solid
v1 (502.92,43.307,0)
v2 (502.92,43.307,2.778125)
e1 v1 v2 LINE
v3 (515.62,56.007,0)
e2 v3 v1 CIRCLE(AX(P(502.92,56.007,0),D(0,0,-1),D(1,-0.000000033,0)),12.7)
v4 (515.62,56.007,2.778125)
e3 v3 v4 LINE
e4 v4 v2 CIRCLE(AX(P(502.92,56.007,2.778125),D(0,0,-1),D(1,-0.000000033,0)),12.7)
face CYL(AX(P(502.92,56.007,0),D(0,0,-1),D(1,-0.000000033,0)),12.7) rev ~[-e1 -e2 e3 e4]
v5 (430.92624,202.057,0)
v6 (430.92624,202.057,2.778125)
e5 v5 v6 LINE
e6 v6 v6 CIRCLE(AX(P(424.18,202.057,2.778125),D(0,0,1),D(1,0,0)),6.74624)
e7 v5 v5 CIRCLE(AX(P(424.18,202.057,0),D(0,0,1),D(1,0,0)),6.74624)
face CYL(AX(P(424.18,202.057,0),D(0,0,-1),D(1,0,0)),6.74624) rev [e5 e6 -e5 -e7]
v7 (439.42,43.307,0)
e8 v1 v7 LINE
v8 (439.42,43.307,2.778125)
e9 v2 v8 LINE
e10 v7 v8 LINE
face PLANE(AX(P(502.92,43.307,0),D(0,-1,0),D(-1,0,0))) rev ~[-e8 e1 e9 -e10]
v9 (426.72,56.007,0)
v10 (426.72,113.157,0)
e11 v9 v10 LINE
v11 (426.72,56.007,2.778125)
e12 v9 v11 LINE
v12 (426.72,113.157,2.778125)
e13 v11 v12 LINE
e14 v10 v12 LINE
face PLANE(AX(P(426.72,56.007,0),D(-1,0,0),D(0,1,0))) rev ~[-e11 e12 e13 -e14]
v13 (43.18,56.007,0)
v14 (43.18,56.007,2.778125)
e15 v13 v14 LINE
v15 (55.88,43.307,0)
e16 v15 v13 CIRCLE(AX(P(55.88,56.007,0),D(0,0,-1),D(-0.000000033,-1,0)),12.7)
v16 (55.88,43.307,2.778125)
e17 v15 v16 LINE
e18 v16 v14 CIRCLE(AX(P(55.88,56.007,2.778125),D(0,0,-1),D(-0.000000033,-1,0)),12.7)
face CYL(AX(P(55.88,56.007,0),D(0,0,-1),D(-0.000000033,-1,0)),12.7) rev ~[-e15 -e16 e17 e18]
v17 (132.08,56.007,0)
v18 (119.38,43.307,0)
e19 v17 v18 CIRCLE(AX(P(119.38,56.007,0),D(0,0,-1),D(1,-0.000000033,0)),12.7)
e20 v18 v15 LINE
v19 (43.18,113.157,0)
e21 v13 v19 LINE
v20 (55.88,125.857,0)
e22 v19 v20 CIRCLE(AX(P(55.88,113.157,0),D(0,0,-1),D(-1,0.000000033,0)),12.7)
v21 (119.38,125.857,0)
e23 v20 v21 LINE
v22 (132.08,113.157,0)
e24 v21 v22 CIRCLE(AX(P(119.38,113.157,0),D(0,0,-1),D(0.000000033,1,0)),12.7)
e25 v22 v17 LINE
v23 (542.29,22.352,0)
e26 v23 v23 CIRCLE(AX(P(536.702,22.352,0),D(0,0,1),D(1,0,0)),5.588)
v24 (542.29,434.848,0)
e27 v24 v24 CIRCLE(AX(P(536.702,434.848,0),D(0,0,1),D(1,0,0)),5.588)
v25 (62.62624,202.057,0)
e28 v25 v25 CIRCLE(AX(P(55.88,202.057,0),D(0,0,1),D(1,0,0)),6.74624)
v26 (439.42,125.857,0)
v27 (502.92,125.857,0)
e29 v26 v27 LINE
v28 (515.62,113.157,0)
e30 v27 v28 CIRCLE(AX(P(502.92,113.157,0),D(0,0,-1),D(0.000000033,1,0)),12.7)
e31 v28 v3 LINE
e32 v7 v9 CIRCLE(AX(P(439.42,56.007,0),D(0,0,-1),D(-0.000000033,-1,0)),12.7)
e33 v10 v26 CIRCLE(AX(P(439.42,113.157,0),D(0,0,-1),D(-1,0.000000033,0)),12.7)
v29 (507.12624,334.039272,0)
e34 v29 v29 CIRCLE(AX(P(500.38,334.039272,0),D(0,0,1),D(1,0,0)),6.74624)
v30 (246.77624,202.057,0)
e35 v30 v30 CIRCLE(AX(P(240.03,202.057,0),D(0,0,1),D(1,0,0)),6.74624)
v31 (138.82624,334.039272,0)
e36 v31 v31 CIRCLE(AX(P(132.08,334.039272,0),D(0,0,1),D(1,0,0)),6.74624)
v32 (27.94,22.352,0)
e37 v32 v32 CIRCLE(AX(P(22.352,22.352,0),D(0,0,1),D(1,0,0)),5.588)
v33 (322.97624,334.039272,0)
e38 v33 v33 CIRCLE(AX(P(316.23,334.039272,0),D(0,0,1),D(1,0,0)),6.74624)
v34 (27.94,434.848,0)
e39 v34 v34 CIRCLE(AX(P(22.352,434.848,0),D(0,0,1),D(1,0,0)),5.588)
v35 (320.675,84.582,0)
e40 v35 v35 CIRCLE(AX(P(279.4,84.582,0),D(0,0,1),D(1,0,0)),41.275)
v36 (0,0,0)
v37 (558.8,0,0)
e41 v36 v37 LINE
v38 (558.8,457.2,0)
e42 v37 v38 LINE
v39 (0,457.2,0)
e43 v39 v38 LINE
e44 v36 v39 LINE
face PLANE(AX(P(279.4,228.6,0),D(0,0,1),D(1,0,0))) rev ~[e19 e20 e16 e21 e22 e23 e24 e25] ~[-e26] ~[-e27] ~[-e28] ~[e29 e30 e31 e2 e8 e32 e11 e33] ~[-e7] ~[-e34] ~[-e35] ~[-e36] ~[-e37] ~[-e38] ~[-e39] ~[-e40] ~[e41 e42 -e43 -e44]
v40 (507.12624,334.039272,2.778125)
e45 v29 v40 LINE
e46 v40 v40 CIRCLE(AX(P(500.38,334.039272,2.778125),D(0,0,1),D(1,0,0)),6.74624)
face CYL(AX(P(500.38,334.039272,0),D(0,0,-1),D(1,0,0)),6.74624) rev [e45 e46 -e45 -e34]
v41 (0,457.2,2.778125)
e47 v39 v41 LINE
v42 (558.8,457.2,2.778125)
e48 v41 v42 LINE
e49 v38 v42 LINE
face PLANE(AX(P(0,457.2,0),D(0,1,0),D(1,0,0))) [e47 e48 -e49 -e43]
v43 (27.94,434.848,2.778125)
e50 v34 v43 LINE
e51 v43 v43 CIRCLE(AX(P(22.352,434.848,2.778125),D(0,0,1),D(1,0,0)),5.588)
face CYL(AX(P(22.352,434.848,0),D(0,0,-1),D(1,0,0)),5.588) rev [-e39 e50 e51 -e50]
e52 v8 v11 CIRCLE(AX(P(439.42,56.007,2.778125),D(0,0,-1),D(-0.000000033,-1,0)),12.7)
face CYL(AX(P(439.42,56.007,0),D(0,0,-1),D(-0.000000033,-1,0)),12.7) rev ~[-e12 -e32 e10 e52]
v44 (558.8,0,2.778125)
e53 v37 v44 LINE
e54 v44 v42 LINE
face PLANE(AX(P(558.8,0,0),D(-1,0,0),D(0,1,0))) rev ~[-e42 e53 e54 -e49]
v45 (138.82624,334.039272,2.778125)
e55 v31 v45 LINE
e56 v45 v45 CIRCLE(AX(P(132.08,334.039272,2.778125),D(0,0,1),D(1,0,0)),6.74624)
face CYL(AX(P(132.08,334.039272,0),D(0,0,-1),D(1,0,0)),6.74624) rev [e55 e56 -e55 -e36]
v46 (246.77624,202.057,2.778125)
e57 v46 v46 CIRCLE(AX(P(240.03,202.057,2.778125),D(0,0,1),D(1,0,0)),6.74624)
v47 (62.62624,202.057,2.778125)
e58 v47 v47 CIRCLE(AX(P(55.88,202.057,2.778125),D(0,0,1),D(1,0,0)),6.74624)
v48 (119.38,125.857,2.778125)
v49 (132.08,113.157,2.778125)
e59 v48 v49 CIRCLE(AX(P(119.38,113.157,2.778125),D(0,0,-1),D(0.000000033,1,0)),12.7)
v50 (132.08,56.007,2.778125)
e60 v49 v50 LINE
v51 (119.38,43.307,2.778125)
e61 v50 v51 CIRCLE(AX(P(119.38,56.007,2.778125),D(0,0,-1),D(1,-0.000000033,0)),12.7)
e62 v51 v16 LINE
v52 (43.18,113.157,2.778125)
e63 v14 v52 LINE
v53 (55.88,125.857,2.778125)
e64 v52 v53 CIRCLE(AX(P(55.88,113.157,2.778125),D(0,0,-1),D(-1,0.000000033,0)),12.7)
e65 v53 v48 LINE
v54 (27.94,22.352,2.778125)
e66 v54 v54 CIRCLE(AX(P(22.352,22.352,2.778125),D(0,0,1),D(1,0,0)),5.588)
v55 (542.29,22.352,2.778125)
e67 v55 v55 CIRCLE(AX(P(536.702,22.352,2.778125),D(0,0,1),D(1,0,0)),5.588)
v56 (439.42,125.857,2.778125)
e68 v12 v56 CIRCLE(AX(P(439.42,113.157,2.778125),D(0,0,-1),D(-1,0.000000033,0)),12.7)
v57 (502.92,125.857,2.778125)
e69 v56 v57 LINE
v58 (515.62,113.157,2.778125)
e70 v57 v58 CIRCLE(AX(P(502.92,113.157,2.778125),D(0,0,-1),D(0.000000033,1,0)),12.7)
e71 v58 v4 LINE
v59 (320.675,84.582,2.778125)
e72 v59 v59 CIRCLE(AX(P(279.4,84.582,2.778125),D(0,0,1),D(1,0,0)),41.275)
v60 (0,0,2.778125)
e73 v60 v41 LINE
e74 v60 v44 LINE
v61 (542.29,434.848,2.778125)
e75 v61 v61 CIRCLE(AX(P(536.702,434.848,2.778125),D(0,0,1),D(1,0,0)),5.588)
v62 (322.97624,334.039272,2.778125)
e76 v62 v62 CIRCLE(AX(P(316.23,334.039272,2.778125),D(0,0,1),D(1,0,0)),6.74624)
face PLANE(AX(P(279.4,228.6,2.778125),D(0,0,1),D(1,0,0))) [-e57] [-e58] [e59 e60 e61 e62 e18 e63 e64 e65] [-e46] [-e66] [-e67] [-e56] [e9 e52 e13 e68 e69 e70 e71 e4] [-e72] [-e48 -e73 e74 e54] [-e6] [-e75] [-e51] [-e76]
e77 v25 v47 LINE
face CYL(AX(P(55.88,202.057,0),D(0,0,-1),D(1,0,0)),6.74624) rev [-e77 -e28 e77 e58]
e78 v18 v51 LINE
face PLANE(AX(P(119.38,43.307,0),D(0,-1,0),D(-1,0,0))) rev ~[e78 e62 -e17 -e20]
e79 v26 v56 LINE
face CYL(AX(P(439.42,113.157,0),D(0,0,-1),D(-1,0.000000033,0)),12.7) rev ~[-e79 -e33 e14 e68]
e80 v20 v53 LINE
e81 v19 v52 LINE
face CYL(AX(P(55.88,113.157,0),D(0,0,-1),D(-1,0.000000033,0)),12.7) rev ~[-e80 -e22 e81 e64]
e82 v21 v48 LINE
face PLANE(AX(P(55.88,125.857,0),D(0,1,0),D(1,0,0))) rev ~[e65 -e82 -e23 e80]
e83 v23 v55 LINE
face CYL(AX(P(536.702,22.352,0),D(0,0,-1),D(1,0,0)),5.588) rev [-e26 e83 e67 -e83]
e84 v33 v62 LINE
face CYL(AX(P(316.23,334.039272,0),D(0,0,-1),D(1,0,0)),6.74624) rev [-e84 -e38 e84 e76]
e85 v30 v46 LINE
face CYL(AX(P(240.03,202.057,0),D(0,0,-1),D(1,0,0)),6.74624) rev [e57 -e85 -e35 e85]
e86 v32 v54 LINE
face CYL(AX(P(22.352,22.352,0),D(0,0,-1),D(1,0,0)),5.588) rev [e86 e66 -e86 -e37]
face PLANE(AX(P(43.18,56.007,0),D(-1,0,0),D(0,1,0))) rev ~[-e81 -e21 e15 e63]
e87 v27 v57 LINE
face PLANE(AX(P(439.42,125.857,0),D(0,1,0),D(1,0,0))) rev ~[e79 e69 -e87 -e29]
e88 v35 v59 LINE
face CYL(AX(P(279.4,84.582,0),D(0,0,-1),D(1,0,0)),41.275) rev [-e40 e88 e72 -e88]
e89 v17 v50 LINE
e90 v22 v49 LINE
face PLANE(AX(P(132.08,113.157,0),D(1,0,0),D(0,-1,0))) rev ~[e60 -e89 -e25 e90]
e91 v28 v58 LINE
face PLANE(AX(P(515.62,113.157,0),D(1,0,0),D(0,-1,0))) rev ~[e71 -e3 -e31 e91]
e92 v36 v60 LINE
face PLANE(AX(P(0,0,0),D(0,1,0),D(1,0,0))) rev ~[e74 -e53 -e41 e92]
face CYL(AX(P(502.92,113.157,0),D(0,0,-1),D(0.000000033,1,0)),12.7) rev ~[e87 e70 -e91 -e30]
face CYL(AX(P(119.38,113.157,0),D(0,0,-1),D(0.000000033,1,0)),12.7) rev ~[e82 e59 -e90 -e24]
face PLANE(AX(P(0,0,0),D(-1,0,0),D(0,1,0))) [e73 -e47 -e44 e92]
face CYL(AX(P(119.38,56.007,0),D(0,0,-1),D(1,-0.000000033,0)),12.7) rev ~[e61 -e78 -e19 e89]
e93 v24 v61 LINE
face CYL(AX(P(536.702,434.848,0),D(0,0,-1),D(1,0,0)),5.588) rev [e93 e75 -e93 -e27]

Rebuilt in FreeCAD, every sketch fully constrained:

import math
import FreeCAD as App
import Part
import Sketcher
from FreeCAD import Vector
Q = App.Units.Quantity


def add_polygon(sketch, points):
    """Adds a closed chain of lines whose ends are joined by coincident constraints."""
    first, n = sketch.GeometryCount, len(points)
    for a, b in zip(points, points[1:] + points[:1]):
        sketch.addGeometry(Part.LineSegment(App.Vector(*a, 0), App.Vector(*b, 0)), False)
    for i in range(n):
        sketch.addConstraint(Sketcher.Constraint("Coincident", first + i, 2, first + (i + 1) % n, 1))

doc = App.newDocument("Part")
body = doc.addObject("PartDesign::Body", "Body")

sketch1 = body.newObject("Sketcher::SketchObject", "Sketch")
sketch1.AttachmentSupport = (doc.getObject("XY_Plane"), [""])
sketch1.MapMode = "FlatFace"
add_polygon(sketch1, [(0, 457), (0, 0), (559, 0), (559, 457)])
sketch1.addGeometry(Part.Circle(Vector(22, 22, 0), Vector(0, 0, 1), 6), False)
sketch1.addGeometry(Part.LineSegment(Vector(43, 56, 0), Vector(43, 113, 0)), False)
sketch1.addGeometry(Part.ArcOfCircle(Part.Circle(Vector(56, 113, 0), Vector(0, 0, 1), 13), math.radians(90), math.radians(180)), False)
sketch1.addGeometry(Part.LineSegment(Vector(56, 126, 0), Vector(119, 126, 0)), False)
sketch1.addGeometry(Part.ArcOfCircle(Part.Circle(Vector(119, 113, 0), Vector(0, 0, 1), 13), math.radians(0), math.radians(90)), False)
sketch1.addGeometry(Part.LineSegment(Vector(132, 113, 0), Vector(132, 56, 0)), False)
sketch1.addGeometry(Part.ArcOfCircle(Part.Circle(Vector(119, 56, 0), Vector(0, 0, 1), 13), math.radians(-90), math.radians(0)), False)
sketch1.addGeometry(Part.LineSegment(Vector(119, 43, 0), Vector(56, 43, 0)), False)
sketch1.addGeometry(Part.ArcOfCircle(Part.Circle(Vector(56, 56, 0), Vector(0, 0, 1), 13), math.radians(-180), math.radians(-90)), False)
sketch1.addGeometry(Part.Circle(Vector(279, 85, 0), Vector(0, 0, 1), 41), False)
sketch1.addGeometry(Part.Circle(Vector(56, 202, 0), Vector(0, 0, 1), 7), False)
sketch1.addGeometry(Part.Circle(Vector(240, 202, 0), Vector(0, 0, 1), 7), False)
sketch1.addGeometry(Part.Circle(Vector(537, 22, 0), Vector(0, 0, 1), 6), False)
sketch1.addGeometry(Part.ArcOfCircle(Part.Circle(Vector(439, 113, 0), Vector(0, 0, 1), 13), math.radians(90), math.radians(180)), False)
sketch1.addGeometry(Part.LineSegment(Vector(439, 126, 0), Vector(503, 126, 0)), False)
sketch1.addGeometry(Part.ArcOfCircle(Part.Circle(Vector(503, 113, 0), Vector(0, 0, 1), 13), math.radians(0), math.radians(90)), False)
sketch1.addGeometry(Part.LineSegment(Vector(516, 113, 0), Vector(516, 56, 0)), False)
sketch1.addGeometry(Part.ArcOfCircle(Part.Circle(Vector(503, 56, 0), Vector(0, 0, 1), 13), math.radians(-90), math.radians(0)), False)
sketch1.addGeometry(Part.LineSegment(Vector(503, 43, 0), Vector(439, 43, 0)), False)
sketch1.addGeometry(Part.ArcOfCircle(Part.Circle(Vector(439, 56, 0), Vector(0, 0, 1), 13), math.radians(-180), math.radians(-90)), False)
sketch1.addGeometry(Part.LineSegment(Vector(427, 56, 0), Vector(427, 113, 0)), False)
sketch1.addGeometry(Part.Circle(Vector(424, 202, 0), Vector(0, 0, 1), 7), False)
sketch1.addGeometry(Part.Circle(Vector(132, 334, 0), Vector(0, 0, 1), 7), False)
sketch1.addGeometry(Part.Circle(Vector(22, 435, 0), Vector(0, 0, 1), 6), False)
sketch1.addGeometry(Part.Circle(Vector(316, 334, 0), Vector(0, 0, 1), 7), False)
sketch1.addGeometry(Part.Circle(Vector(500, 334, 0), Vector(0, 0, 1), 7), False)
sketch1.addGeometry(Part.Circle(Vector(537, 435, 0), Vector(0, 0, 1), 6), False)
sketch1.addConstraint(Sketcher.Constraint("Tangent", 5, 2, 6, 2))
sketch1.addConstraint(Sketcher.Constraint("Tangent", 6, 1, 7, 1))
sketch1.addConstraint(Sketcher.Constraint("Tangent", 7, 2, 8, 2))
sketch1.addConstraint(Sketcher.Constraint("Tangent", 8, 1, 9, 1))
sketch1.addConstraint(Sketcher.Constraint("Tangent", 9, 2, 10, 2))
sketch1.addConstraint(Sketcher.Constraint("Tangent", 10, 1, 11, 1))
sketch1.addConstraint(Sketcher.Constraint("Tangent", 11, 2, 12, 2))
sketch1.addConstraint(Sketcher.Constraint("Tangent", 12, 1, 5, 1))
sketch1.addConstraint(Sketcher.Constraint("Tangent", 17, 1, 18, 1))
sketch1.addConstraint(Sketcher.Constraint("Tangent", 18, 2, 19, 2))
sketch1.addConstraint(Sketcher.Constraint("Tangent", 19, 1, 20, 1))
sketch1.addConstraint(Sketcher.Constraint("Tangent", 20, 2, 21, 2))
sketch1.addConstraint(Sketcher.Constraint("Tangent", 21, 1, 22, 1))
sketch1.addConstraint(Sketcher.Constraint("Tangent", 22, 2, 23, 2))
sketch1.addConstraint(Sketcher.Constraint("Tangent", 23, 1, 24, 1))
sketch1.addConstraint(Sketcher.Constraint("Tangent", 24, 2, 17, 2))
sketch1.addConstraint(Sketcher.Constraint("Vertical", 0))
sketch1.addConstraint(Sketcher.Constraint("Horizontal", 1))
sketch1.addConstraint(Sketcher.Constraint("Vertical", 2))
sketch1.addConstraint(Sketcher.Constraint("Horizontal", 3))
sketch1.addConstraint(Sketcher.Constraint("Vertical", 5))
sketch1.addConstraint(Sketcher.Constraint("Horizontal", 7))
sketch1.addConstraint(Sketcher.Constraint("Vertical", 9))
sketch1.addConstraint(Sketcher.Constraint("Horizontal", 11))
sketch1.addConstraint(Sketcher.Constraint("Horizontal", 18))
sketch1.addConstraint(Sketcher.Constraint("Vertical", 20))
sketch1.addConstraint(Sketcher.Constraint("Horizontal", 22))
sketch1.addConstraint(Sketcher.Constraint("Vertical", 24))
sketch1.addConstraint(Sketcher.Constraint("Coincident", 0, 2, -1, 1))
sketch1.addConstraint(Sketcher.Constraint("Equal", 6, 8))
sketch1.addConstraint(Sketcher.Constraint("Equal", 8, 10))
sketch1.addConstraint(Sketcher.Constraint("Equal", 10, 12))
sketch1.addConstraint(Sketcher.Constraint("Equal", 14, 15))
sketch1.addConstraint(Sketcher.Constraint("Equal", 4, 16))
sketch1.addConstraint(Sketcher.Constraint("Equal", 12, 17))
sketch1.addConstraint(Sketcher.Constraint("Equal", 17, 19))
sketch1.addConstraint(Sketcher.Constraint("Equal", 19, 21))
sketch1.addConstraint(Sketcher.Constraint("Equal", 21, 23))
sketch1.addConstraint(Sketcher.Constraint("Equal", 15, 25))
sketch1.addConstraint(Sketcher.Constraint("Equal", 25, 26))
sketch1.addConstraint(Sketcher.Constraint("Equal", 16, 27))
sketch1.addConstraint(Sketcher.Constraint("Equal", 26, 28))
sketch1.addConstraint(Sketcher.Constraint("Equal", 28, 29))
sketch1.addConstraint(Sketcher.Constraint("Equal", 27, 30))
sketch1.addConstraint(Sketcher.Constraint("Horizontal", 14, 3, 15, 3))
sketch1.addConstraint(Sketcher.Constraint("Horizontal", 4, 3, 16, 3))
sketch1.addConstraint(Sketcher.Constraint("Horizontal", 8, 3, 17, 3))
sketch1.addConstraint(Sketcher.Constraint("Horizontal", 12, 3, 21, 3))
sketch1.addConstraint(Sketcher.Constraint("Horizontal", 15, 3, 25, 3))
sketch1.addConstraint(Sketcher.Constraint("Horizontal", 26, 3, 28, 3))
sketch1.addConstraint(Sketcher.Constraint("Horizontal", 28, 3, 29, 3))
sketch1.addConstraint(Sketcher.Constraint("Horizontal", 27, 3, 30, 3))
sketch1.addConstraint(Sketcher.Constraint("Vertical", 12, 3, 14, 3))
sketch1.addConstraint(Sketcher.Constraint("Vertical", 4, 3, 27, 3))
sketch1.addConstraint(Sketcher.Constraint("Vertical", 16, 3, 30, 3))
sketch1.addConstraint(Sketcher.Constraint("Vertical", 26, 3, 8, 1))
sketch1.addConstraint(Sketcher.Constraint("Equal", 11, 18))
sketch1.addConstraint(Sketcher.Constraint("Radius", 6, Q("0.5 in")))
sketch1.addConstraint(Sketcher.Constraint("Diameter", 4, Q("0.44 in")))
sketch1.addConstraint(Sketcher.Constraint("Diameter", 13, Q("3.25 in")))
sketch1.addConstraint(Sketcher.Constraint("DistanceX", 1, 1, 1, 2, Q("22 in")))
sketch1.addConstraint(Sketcher.Constraint("DistanceY", 0, 2, 0, 1, Q("18 in")))
sketch1.addConstraint(Sketcher.Constraint("DistanceX", 7, 1, 7, 2, Q("2.5 in")))
sketch1.addConstraint(Sketcher.Constraint("DistanceX", -1, 1, 13, 3, Q("11 in")))
sketch1.addConstraint(Sketcher.Constraint("DistanceX", 15, 3, 28, 3, Q("3 in")))
sketch1.addConstraint(Sketcher.Constraint("DistanceX", 25, 3, 29, 3, Q("3 in")))
sketch1.addConstraint(Sketcher.Constraint("DistanceY", 6, 1, 14, 3, Q("3 in")))
sketch1.addConstraint(Sketcher.Constraint("Diameter", 14, Q("0.5312 in")))
sketch1.addConstraint(Sketcher.Constraint("DistanceY", 5, 1, 5, 2, Q("2.25 in")))
sketch1.addConstraint(Sketcher.Constraint("DistanceX", -1, 1, 6, 3, Q("2.2 in")))
sketch1.addConstraint(Sketcher.Constraint("DistanceX", -1, 1, 17, 3, Q("17.3 in")))
sketch1.addConstraint(Sketcher.Constraint("DistanceX", -1, 1, 25, 3, Q("16.7 in")))
sketch1.addConstraint(Sketcher.Constraint("DistanceX", -1, 1, 4, 3, Q("0.88 in")))
sketch1.addConstraint(Sketcher.Constraint("DistanceY", -1, 1, 4, 3, Q("0.88 in")))
sketch1.addConstraint(Sketcher.Constraint("DistanceY", -1, 1, 13, 3, Q("3.33 in")))
sketch1.addConstraint(Sketcher.Constraint("DistanceX", -1, 1, 15, 3, Q("9.45 in")))
sketch1.addConstraint(Sketcher.Constraint("DistanceX", -1, 1, 16, 3, Q("21.13 in")))
sketch1.addConstraint(Sketcher.Constraint("DistanceY", -1, 1, 27, 3, Q("17.12 in")))
sketch1.addConstraint(Sketcher.Constraint("DistanceY", -1, 1, 6, 3, Q("4.455 in")))
sketch1.addConstraint(Sketcher.Constraint("DistanceY", -1, 1, 26, 3, Q("334.039272 mm")))
pad1 = body.newObject("PartDesign::Pad", "Pad")
pad1.Profile = sketch1
pad1.Length = Q("0.109375 in")

doc.recompute()
